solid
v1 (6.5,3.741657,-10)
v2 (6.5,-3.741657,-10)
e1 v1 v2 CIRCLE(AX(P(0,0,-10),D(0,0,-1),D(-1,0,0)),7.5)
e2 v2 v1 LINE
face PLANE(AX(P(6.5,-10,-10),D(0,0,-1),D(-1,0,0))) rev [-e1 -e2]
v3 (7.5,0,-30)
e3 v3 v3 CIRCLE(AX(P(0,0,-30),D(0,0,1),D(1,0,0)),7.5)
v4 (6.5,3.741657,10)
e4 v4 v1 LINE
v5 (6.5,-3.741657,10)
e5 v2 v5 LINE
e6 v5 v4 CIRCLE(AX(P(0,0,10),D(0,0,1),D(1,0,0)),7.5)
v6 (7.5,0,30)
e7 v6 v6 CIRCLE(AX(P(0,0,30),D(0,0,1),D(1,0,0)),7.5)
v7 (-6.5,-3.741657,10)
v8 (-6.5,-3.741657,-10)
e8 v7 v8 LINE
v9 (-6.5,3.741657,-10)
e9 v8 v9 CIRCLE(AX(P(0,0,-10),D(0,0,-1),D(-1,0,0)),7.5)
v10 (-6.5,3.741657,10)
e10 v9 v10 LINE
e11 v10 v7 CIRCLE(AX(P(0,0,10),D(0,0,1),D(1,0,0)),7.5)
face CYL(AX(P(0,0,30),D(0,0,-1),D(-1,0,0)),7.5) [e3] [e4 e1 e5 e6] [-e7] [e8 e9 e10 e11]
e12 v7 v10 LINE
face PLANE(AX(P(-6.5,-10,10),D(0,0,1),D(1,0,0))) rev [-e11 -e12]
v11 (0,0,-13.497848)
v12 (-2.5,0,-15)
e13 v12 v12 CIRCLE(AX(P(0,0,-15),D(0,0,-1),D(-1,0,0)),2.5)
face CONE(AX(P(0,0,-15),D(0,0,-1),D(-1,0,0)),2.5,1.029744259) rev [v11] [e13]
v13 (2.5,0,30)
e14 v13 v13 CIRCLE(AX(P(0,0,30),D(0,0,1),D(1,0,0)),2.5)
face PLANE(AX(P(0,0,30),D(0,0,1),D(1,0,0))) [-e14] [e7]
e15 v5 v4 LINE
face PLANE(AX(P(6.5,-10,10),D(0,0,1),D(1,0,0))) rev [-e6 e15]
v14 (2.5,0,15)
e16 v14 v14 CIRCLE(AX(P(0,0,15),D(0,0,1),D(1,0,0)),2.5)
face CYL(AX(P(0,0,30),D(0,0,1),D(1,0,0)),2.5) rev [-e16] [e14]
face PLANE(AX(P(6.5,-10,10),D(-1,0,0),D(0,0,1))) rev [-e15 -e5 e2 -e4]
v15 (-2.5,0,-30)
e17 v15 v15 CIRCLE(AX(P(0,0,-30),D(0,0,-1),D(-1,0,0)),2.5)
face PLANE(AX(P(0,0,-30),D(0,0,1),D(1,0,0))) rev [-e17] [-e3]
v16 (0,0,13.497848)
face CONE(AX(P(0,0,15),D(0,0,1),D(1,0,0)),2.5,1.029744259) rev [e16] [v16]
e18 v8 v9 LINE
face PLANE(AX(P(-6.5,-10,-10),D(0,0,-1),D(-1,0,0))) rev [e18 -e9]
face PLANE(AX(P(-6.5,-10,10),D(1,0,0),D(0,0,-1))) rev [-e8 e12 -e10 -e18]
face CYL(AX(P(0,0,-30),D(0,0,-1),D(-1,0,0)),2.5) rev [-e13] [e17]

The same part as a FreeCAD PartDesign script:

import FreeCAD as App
import Part
import Sketcher

V = App.Vector
Q = App.Units.Quantity

doc = App.newDocument("Part")
body = doc.addObject("PartDesign::Body", "Body")

sketch1 = body.newObject("Sketcher::SketchObject", "Sketch")
sketch1.AttachmentSupport = (doc.getObject("XY_Plane"), [""])
sketch1.MapMode = "FlatFace"
sketch1.addGeometry(Part.Circle(V(0, 0, 0), V(0, 0, 1), 8), False)
sketch1.addConstraint(Sketcher.Constraint("Coincident", 0, 3, -1, 1))
sketch1.addConstraint(Sketcher.Constraint("Diameter", 0, Q("15 mm")))
pad1 = body.newObject("PartDesign::Pad", "Pad")
pad1.Profile = sketch1
pad1.Length = 60
pad1.Midplane = True

sketch2 = body.newObject("Sketcher::SketchObject", "Sketch001")
sketch2.AttachmentSupport = (doc.getObject("XZ_Plane"), [""])
sketch2.MapMode = "FlatFace"
sketch2.addGeometry(Part.LineSegment(V(-8.5, -10, 0), V(-8.5, 10, 0)), False)
sketch2.addGeometry(Part.LineSegment(V(-8.5, 10, 0), V(-6.5, 10, 0)), False)
sketch2.addGeometry(Part.LineSegment(V(-6.5, 10, 0), V(-6.5, -10, 0)), False)
sketch2.addGeometry(Part.LineSegment(V(-6.5, -10, 0), V(-8.5, -10, 0)), False)
sketch2.addGeometry(Part.LineSegment(V(6.5, -10, 0), V(6.5, 10, 0)), False)
sketch2.addGeometry(Part.LineSegment(V(6.5, 10, 0), V(8.5, 10, 0)), False)
sketch2.addGeometry(Part.LineSegment(V(8.5, 10, 0), V(8.5, -10, 0)), False)
sketch2.addGeometry(Part.LineSegment(V(8.5, -10, 0), V(6.5, -10, 0)), False)
sketch2.addConstraint(Sketcher.Constraint("Coincident", 0, 2, 1, 1))
sketch2.addConstraint(Sketcher.Constraint("Coincident", 1, 2, 2, 1))
sketch2.addConstraint(Sketcher.Constraint("Coincident", 2, 2, 3, 1))
sketch2.addConstraint(Sketcher.Constraint("Coincident", 3, 2, 0, 1))
sketch2.addConstraint(Sketcher.Constraint("Coincident", 4, 2, 5, 1))
sketch2.addConstraint(Sketcher.Constraint("Coincident", 5, 2, 6, 1))
sketch2.addConstraint(Sketcher.Constraint("Coincident", 6, 2, 7, 1))
sketch2.addConstraint(Sketcher.Constraint("Coincident", 7, 2, 4, 1))
sketch2.addConstraint(Sketcher.Constraint("Vertical", 0))
sketch2.addConstraint(Sketcher.Constraint("Horizontal", 1))
sketch2.addConstraint(Sketcher.Constraint("Vertical", 2))
sketch2.addConstraint(Sketcher.Constraint("Horizontal", 3))
sketch2.addConstraint(Sketcher.Constraint("Vertical", 4))
sketch2.addConstraint(Sketcher.Constraint("Horizontal", 5))
sketch2.addConstraint(Sketcher.Constraint("Vertical", 6))
sketch2.addConstraint(Sketcher.Constraint("Horizontal", 7))
sketch2.addConstraint(Sketcher.Constraint("Symmetric", 2, 2, 4, 2, -1, 1))
sketch2.addConstraint(Sketcher.Constraint("Symmetric", 0, 2, 6, 2, -1, 1))
sketch2.addConstraint(Sketcher.Constraint("Horizontal", 1, 2, 4, 2))
sketch2.addConstraint(Sketcher.Constraint("DistanceX", 1, 1, 1, 2, Q("2 mm")))
sketch2.addConstraint(Sketcher.Constraint("DistanceY", 0, 1, 0, 2, Q("20 mm")))
sketch2.addConstraint(Sketcher.Constraint("DistanceX", 1, 2, 4, 2, Q("13 mm")))
pocket1 = body.newObject("PartDesign::Pocket", "Pocket")
pocket1.Profile = sketch2
pocket1.Length = 20
pocket1.Midplane = True

sketch3 = body.newObject("Sketcher::SketchObject", "Sketch002")
sketch3.AttachmentSupport = (doc.getObject("YZ_Plane"), [""])
sketch3.MapMode = "FlatFace"
sketch3.addGeometry(Part.LineSegment(V(0, -13.5, 0), V(0, -30, 0)), False)
sketch3.addGeometry(Part.LineSegment(V(0, -30, 0), V(2.5, -30, 0)), False)
sketch3.addGeometry(Part.LineSegment(V(2.5, -30, 0), V(2.5, -15, 0)), False)
sketch3.addGeometry(Part.LineSegment(V(2.5, -15, 0), V(0, -13.5, 0)), False)
sketch3.addConstraint(Sketcher.Constraint("Coincident", 0, 2, 1, 1))
sketch3.addConstraint(Sketcher.Constraint("Coincident", 1, 2, 2, 1))
sketch3.addConstraint(Sketcher.Constraint("Coincident", 2, 2, 3, 1))
sketch3.addConstraint(Sketcher.Constraint("Coincident", 3, 2, 0, 1))
sketch3.addConstraint(Sketcher.Constraint("Vertical", 0))
sketch3.addConstraint(Sketcher.Constraint("Horizontal", 1))
sketch3.addConstraint(Sketcher.Constraint("Vertical", 2))
sketch3.addConstraint(Sketcher.Constraint("PointOnObject", 0, 2, -2))
sketch3.addConstraint(Sketcher.Constraint("DistanceY", 2, 1, 2, 2, Q("15 mm")))
sketch3.addConstraint(Sketcher.Constraint("Angle", 3, Q("149 deg")))
sketch3.addConstraint(Sketcher.Constraint("DistanceX", 1, 1, 1, 2, Q("2.5 mm")))
sketch3.addConstraint(Sketcher.Constraint("DistanceY", 0, 2, -1, 1, Q("30 mm")))
groove = body.newObject("PartDesign::Groove", "Groove")
groove.Profile = sketch3
groove.ReferenceAxis = (sketch3, ["V_Axis"])
groove.Angle = 360
doc.recompute()

mirrored = body.newObject("PartDesign::Mirrored", "Mirrored")
mirrored.Originals = [groove]
mirrored.MirrorPlane = (doc.getObject("XY_Plane"), [""])
body.Tip = mirrored

doc.recompute()
